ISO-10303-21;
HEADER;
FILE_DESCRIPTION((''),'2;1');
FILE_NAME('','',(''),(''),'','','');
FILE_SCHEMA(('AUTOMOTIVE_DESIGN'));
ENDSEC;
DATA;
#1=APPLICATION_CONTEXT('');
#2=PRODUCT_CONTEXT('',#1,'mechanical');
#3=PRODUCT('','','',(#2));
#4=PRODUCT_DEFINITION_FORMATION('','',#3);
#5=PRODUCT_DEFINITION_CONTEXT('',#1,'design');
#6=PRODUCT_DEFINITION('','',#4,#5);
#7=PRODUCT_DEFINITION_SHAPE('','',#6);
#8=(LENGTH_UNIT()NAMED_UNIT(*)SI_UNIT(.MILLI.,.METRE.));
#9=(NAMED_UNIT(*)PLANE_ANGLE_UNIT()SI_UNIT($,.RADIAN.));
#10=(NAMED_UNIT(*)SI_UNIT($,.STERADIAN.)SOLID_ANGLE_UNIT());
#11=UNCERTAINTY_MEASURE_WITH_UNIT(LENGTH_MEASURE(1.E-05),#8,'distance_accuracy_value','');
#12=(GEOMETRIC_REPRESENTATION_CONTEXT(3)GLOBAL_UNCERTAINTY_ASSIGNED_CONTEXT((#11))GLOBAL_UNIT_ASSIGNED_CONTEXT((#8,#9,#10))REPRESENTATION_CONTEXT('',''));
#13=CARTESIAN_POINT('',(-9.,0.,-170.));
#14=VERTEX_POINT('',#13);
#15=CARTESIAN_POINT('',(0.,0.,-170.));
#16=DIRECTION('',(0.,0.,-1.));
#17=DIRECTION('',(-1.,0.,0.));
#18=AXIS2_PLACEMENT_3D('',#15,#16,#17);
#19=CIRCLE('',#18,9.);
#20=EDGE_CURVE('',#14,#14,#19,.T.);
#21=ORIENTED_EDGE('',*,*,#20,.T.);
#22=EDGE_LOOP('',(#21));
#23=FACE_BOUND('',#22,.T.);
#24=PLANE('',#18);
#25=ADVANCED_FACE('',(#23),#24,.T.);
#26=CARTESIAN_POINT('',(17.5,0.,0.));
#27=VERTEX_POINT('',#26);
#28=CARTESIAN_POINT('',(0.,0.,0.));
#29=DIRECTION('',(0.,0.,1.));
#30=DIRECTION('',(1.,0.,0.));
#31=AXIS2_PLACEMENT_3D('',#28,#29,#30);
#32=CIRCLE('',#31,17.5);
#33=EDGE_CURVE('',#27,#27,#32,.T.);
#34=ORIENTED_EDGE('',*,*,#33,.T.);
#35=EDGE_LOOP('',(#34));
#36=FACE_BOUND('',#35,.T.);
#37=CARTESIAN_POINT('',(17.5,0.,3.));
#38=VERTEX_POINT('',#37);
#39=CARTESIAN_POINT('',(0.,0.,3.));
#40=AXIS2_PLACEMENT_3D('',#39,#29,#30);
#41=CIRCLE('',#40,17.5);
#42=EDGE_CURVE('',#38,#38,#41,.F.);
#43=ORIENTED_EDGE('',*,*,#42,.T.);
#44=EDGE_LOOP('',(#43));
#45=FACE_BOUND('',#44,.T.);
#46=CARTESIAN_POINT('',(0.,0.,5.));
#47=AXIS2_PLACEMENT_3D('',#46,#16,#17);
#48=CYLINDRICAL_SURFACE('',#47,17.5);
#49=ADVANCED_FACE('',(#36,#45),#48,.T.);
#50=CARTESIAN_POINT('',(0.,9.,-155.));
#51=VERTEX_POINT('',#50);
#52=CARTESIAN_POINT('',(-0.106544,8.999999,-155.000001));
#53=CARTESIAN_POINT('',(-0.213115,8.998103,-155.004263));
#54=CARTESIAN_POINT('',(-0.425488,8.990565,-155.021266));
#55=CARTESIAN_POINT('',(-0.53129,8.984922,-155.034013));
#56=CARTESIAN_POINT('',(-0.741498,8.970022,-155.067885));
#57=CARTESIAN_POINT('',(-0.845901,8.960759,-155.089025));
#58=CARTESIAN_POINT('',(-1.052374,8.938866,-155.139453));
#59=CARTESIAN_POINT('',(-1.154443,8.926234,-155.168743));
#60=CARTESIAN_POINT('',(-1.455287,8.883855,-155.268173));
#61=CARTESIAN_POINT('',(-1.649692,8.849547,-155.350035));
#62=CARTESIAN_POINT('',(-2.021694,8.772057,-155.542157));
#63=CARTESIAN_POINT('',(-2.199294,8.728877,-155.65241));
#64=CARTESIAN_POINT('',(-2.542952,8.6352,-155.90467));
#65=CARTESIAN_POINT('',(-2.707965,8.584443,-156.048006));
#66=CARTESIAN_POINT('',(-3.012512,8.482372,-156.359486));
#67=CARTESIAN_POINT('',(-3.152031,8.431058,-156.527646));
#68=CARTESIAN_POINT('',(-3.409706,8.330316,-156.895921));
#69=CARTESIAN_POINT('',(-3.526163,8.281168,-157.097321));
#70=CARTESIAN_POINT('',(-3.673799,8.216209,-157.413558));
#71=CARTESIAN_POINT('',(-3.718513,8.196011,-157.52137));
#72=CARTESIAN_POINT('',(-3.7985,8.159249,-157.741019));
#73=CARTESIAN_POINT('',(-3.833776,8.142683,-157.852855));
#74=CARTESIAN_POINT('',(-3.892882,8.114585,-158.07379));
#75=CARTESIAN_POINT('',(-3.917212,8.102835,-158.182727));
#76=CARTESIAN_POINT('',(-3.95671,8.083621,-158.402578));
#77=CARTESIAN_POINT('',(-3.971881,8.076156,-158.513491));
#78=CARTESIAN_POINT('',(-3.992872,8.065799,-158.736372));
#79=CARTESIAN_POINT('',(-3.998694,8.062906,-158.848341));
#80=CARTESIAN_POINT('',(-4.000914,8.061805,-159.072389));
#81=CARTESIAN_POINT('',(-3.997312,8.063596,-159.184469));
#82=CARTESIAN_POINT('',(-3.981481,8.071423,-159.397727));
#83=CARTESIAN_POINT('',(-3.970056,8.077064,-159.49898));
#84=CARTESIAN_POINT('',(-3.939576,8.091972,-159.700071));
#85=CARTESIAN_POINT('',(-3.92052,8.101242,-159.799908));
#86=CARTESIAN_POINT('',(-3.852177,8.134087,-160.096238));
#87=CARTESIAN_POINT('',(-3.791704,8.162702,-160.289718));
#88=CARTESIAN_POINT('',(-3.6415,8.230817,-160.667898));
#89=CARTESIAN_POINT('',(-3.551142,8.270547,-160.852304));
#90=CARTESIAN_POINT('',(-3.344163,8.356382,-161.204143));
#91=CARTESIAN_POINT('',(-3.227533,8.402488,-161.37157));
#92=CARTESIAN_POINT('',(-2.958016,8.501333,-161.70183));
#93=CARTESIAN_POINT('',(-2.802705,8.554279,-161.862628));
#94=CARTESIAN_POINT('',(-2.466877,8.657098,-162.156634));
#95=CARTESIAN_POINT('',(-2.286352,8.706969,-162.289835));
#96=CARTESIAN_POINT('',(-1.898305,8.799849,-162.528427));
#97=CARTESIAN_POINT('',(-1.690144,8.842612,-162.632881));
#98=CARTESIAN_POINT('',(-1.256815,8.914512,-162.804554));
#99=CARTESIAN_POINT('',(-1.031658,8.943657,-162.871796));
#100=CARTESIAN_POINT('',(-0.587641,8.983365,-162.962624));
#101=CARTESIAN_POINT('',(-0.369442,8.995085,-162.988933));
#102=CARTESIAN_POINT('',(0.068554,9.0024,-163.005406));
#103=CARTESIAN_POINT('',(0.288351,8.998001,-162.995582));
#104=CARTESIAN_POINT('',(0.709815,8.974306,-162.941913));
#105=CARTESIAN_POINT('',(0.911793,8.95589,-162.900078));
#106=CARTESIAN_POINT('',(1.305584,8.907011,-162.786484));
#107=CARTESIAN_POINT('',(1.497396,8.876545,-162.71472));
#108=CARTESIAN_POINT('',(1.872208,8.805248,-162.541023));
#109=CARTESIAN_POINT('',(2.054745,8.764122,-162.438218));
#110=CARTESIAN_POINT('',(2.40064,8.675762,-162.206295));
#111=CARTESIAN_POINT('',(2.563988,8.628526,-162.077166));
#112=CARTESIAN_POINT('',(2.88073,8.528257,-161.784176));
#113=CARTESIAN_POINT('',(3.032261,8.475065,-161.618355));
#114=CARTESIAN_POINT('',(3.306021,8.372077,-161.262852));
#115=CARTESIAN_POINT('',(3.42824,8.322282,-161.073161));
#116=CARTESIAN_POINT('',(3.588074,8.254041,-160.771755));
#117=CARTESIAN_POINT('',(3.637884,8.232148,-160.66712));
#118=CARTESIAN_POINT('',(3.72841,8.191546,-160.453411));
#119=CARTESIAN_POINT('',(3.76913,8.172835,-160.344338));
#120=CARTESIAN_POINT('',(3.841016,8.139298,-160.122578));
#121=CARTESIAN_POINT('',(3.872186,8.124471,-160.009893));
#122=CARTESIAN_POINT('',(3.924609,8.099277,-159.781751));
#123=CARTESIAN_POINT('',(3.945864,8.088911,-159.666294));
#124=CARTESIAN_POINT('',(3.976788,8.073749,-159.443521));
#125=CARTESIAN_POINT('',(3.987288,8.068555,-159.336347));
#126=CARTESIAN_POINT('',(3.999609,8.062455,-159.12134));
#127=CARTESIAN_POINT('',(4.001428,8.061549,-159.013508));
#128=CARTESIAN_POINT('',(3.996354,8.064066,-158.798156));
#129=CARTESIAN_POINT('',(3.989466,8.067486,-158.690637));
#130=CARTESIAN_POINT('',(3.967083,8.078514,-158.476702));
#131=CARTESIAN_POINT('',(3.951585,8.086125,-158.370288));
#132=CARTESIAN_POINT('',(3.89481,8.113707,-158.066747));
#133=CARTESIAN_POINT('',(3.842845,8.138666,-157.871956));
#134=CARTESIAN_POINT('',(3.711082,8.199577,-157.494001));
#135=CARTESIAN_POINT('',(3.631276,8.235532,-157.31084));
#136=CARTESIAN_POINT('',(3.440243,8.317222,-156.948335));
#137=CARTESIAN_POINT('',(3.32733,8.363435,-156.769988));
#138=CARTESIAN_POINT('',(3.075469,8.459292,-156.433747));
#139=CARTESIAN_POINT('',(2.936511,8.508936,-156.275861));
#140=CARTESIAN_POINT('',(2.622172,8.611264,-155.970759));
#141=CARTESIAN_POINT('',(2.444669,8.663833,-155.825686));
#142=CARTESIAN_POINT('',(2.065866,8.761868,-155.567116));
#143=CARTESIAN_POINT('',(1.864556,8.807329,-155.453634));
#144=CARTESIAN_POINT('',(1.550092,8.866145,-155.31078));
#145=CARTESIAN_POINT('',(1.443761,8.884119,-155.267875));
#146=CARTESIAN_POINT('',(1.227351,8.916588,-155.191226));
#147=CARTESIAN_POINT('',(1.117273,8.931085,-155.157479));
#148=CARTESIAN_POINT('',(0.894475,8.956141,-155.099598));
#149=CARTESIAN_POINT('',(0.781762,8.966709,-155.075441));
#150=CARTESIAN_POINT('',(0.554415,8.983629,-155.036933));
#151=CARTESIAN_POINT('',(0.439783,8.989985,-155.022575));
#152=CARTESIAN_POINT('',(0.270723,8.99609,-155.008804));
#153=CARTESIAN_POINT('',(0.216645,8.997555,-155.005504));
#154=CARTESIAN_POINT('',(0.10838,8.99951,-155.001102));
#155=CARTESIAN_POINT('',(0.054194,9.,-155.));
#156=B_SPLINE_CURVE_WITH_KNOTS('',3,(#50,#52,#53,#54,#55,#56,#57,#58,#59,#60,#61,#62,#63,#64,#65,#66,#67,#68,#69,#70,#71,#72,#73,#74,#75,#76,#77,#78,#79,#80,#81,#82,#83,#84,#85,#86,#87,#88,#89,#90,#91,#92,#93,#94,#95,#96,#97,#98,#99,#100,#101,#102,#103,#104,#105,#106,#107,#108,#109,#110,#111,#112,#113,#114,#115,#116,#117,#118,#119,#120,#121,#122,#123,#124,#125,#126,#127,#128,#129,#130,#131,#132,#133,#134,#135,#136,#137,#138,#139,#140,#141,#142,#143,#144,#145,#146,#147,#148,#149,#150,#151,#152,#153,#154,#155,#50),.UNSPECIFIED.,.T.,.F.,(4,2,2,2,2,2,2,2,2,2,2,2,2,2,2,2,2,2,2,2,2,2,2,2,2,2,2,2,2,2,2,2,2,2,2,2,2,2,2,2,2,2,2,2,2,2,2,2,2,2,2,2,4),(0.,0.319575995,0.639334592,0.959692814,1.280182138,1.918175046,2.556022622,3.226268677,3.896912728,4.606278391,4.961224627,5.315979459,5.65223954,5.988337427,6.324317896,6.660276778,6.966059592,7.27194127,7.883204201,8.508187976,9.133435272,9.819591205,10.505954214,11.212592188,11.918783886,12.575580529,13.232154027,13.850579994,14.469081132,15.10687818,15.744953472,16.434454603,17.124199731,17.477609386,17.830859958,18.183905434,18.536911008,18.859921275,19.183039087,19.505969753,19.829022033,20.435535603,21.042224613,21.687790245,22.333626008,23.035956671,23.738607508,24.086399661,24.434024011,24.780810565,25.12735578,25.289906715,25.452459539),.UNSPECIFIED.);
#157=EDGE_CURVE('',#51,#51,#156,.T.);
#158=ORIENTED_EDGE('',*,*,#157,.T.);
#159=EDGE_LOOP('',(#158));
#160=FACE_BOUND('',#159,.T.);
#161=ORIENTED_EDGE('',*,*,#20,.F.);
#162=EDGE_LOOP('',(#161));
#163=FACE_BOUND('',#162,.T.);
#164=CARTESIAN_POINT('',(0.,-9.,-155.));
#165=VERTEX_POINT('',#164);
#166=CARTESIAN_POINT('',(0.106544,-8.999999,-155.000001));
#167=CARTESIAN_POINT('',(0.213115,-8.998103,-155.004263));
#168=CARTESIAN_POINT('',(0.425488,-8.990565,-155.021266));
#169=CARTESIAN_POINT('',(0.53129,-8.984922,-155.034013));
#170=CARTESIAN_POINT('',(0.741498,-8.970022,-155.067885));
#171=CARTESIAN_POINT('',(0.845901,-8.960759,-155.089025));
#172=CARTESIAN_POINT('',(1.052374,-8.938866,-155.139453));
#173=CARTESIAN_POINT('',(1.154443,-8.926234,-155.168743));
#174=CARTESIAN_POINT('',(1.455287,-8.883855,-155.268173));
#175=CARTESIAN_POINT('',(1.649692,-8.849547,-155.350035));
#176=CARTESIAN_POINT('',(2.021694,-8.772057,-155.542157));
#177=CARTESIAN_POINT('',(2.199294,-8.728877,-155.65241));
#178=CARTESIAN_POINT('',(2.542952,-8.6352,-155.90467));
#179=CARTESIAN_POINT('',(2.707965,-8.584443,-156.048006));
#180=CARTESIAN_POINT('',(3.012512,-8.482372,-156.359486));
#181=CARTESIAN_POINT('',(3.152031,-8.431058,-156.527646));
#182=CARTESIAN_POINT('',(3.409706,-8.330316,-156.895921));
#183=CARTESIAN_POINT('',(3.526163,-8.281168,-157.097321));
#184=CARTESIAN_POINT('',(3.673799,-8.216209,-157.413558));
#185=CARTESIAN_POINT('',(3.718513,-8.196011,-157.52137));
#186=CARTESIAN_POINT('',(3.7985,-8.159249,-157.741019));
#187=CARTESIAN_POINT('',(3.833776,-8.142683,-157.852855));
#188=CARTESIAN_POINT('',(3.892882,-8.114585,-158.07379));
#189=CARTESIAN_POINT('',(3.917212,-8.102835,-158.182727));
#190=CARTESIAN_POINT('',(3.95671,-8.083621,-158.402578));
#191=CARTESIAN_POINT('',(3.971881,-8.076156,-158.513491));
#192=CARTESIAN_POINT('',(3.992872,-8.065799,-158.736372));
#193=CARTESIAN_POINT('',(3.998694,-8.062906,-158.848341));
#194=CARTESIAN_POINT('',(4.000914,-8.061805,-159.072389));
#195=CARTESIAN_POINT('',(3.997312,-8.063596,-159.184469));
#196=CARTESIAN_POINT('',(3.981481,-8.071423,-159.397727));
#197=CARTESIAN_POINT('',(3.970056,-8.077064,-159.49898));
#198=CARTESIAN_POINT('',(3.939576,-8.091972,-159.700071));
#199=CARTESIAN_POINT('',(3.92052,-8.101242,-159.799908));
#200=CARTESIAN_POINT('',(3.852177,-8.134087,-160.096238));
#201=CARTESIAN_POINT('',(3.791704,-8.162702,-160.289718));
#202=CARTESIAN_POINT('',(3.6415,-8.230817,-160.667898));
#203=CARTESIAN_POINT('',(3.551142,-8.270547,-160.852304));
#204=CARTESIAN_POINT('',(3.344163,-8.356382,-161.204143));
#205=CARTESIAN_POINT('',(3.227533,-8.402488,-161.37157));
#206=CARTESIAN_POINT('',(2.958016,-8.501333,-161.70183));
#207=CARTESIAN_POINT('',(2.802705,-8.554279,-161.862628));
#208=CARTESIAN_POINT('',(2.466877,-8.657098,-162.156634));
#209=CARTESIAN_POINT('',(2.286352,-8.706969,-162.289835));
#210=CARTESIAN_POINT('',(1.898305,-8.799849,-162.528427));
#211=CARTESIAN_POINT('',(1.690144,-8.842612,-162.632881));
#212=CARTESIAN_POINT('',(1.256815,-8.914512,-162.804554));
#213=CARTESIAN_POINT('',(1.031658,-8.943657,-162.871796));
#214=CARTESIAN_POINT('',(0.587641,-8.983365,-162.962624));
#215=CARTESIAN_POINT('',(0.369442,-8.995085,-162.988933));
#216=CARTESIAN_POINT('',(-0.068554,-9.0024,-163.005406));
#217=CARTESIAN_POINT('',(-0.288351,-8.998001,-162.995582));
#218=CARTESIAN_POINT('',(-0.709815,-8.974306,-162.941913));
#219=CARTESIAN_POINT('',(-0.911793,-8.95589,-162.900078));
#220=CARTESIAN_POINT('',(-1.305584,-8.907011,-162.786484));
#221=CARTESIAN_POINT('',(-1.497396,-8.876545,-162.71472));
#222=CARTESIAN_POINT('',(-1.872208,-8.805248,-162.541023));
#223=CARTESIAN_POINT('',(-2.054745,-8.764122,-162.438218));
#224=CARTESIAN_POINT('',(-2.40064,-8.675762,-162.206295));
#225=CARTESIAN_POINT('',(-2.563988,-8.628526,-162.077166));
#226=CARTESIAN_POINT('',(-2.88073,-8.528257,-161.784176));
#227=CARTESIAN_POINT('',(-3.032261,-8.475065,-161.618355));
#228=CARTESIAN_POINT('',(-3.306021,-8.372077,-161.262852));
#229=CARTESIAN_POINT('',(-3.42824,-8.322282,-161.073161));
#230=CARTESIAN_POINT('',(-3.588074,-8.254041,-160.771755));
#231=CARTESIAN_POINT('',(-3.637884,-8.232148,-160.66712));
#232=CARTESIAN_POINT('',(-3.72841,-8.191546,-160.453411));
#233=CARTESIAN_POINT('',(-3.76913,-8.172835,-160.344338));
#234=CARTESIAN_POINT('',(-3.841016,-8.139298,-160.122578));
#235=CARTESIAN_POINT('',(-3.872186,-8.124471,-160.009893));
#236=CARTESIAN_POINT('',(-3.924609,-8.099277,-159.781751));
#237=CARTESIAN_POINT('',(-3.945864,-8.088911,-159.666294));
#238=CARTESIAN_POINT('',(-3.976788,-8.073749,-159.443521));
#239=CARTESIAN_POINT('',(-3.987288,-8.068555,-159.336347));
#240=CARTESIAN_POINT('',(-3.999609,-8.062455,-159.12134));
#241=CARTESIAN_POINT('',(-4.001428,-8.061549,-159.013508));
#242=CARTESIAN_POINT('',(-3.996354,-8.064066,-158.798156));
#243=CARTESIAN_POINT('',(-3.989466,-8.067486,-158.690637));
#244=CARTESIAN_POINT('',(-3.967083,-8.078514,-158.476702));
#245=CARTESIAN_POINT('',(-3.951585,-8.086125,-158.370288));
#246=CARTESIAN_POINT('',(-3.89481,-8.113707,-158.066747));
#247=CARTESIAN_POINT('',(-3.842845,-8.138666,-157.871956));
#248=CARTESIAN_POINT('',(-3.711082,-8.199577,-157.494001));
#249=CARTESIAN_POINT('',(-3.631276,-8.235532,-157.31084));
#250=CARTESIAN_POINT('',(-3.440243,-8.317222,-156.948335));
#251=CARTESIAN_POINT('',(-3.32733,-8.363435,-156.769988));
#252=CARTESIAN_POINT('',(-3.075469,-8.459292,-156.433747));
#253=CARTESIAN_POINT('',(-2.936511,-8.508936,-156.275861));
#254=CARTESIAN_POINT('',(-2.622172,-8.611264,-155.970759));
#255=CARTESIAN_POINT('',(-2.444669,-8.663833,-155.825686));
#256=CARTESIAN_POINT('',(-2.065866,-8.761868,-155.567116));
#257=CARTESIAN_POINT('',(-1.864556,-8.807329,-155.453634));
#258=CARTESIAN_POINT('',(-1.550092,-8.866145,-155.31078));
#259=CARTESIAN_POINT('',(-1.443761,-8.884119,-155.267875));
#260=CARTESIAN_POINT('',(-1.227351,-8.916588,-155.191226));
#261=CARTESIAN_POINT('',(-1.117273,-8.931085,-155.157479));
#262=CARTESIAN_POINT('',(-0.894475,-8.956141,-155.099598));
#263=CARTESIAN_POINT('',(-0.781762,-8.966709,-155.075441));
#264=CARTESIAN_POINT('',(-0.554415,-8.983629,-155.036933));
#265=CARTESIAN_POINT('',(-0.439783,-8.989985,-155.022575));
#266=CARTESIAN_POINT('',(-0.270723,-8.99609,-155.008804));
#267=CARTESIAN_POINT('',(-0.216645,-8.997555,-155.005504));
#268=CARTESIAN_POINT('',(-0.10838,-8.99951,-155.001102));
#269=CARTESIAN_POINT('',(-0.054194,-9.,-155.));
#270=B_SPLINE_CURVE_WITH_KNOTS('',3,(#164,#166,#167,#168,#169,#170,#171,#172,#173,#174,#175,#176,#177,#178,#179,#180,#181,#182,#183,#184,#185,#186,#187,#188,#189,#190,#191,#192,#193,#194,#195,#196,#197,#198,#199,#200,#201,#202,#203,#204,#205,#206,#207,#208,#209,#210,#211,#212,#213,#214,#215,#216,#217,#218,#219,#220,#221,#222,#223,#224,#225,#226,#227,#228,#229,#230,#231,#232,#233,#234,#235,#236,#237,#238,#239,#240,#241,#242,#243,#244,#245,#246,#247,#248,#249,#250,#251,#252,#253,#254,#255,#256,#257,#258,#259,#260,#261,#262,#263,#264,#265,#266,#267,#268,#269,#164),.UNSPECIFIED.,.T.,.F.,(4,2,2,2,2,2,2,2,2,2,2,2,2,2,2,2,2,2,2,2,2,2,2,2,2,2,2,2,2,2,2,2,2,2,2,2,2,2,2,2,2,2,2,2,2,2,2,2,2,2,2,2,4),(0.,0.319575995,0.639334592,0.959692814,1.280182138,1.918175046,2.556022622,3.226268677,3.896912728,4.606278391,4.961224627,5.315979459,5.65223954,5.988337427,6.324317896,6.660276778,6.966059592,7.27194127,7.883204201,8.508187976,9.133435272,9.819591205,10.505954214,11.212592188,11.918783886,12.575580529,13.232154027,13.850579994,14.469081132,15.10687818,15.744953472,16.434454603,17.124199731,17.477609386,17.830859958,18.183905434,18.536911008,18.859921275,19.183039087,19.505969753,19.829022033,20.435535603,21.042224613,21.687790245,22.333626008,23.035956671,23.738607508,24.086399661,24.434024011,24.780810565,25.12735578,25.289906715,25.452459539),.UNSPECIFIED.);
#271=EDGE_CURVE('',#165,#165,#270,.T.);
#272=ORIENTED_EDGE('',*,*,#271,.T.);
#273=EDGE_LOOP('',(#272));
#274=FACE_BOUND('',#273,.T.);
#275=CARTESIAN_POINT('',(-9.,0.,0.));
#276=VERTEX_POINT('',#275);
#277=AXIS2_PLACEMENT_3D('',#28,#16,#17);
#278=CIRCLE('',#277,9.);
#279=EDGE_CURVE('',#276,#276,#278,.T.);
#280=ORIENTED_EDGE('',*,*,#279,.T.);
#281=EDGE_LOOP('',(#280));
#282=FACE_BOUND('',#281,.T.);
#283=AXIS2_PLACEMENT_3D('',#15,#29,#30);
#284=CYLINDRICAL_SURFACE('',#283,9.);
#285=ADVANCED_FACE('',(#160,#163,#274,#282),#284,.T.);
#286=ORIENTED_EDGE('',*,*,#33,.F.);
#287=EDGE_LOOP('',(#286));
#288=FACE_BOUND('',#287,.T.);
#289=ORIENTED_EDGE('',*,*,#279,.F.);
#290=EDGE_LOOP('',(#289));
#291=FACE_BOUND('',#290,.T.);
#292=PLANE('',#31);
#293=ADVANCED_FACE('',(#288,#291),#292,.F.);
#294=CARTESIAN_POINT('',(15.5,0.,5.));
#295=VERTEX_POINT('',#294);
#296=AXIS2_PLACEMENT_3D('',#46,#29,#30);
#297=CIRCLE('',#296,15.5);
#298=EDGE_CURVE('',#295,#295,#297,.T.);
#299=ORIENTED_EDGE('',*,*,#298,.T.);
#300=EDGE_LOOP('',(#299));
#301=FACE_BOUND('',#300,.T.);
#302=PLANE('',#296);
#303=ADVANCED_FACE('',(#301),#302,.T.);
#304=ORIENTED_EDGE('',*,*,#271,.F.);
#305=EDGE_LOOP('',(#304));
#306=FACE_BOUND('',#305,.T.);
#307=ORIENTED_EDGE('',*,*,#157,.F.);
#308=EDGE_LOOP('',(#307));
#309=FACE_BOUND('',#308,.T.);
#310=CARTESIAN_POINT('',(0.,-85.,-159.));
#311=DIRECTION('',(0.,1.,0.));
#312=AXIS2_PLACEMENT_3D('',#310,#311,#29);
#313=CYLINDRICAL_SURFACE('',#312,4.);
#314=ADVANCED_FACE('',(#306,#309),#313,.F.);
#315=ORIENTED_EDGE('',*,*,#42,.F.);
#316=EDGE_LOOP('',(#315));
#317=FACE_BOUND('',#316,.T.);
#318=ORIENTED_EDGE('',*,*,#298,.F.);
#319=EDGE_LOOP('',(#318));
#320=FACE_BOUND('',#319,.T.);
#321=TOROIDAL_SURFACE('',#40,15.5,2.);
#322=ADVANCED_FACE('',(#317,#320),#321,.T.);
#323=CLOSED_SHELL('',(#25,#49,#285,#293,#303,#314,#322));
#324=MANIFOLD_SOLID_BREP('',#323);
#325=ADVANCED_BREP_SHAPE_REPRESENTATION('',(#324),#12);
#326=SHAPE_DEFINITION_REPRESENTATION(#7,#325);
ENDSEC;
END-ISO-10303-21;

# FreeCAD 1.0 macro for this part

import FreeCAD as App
import Part
import Sketcher

V = App.Vector


def edges_at(feature, points):
    """Names of the edges that pass closest to the given points."""
    edges = feature.Shape.Edges
    near = lambda p: min(range(len(edges)), key=lambda i: edges[i].distToShape(Part.Vertex(*p))[0])
    return sorted({f"Edge{near(p) + 1}" for p in points})

doc = App.newDocument("Part")
params = doc.addObject("Spreadsheet::Sheet", "Params")
for row, (alias, value) in enumerate([
    ("sketch1_diameter", "35 mm"),
    ("pad1_length", "5 mm"),
    ("fillet_radius", "2 mm"),
    ("sketch2_diameter", "18 mm"),
    ("pad2_length", "170 mm"),
    ("sketch3_diameter", "8 mm"),
    ("pocket1_length", "170 mm"),
], start=1):
    params.set(f"A{row}", alias)
    params.set(f"B{row}", "=" + value)
    params.setAlias(f"B{row}", alias)

body = doc.addObject("PartDesign::Body", "Body")

# Sketch on XY plane
sketch1 = body.newObject("Sketcher::SketchObject", "Sketch")
sketch1.AttachmentSupport = (doc.getObject("XY_Plane"), [""])
sketch1.MapMode = "FlatFace"
sketch1.addGeometry(Part.Circle(V(0, 0, 0), V(0, 0, 1), 18), False)
sketch1.addConstraint([
    Sketcher.Constraint("Coincident", 0, 3, -1, 1),
    Sketcher.Constraint("Diameter", 0, 35.0),
])
sketch1.setExpression("Constraints[1]", "Params.sketch1_diameter")
pad1 = body.newObject("PartDesign::Pad", "Pad")
pad1.Profile = sketch1
pad1.setExpression("Length", "Params.pad1_length")
doc.recompute()

fillet = body.newObject("PartDesign::Fillet", "Fillet")
fillet.Base = (pad1, edges_at(pad1, [(-17.5, 0, 5)]))
fillet.setExpression("Radius", "Params.fillet_radius")

# Sketch on XY plane
sketch2 = body.newObject("Sketcher::SketchObject", "Sketch001")
sketch2.AttachmentSupport = (doc.getObject("XY_Plane"), [""])
sketch2.MapMode = "FlatFace"
sketch2.addGeometry(Part.Circle(V(0, 0, 0), V(0, 0, 1), 9), False)
sketch2.addConstraint([
    Sketcher.Constraint("Coincident", 0, 3, -1, 1),
    Sketcher.Constraint("Diameter", 0, 18.0),
])
sketch2.setExpression("Constraints[1]", "Params.sketch2_diameter")
pad2 = body.newObject("PartDesign::Pad", "Pad001")
pad2.Profile = sketch2
pad2.setExpression("Length", "Params.pad2_length")
pad2.Reversed = True

# Sketch on XZ plane
sketch3 = body.newObject("Sketcher::SketchObject", "Sketch002")
sketch3.AttachmentSupport = (doc.getObject("XZ_Plane"), [""])
sketch3.MapMode = "FlatFace"
sketch3.addGeometry(Part.Circle(V(0, -159, 0), V(0, 0, 1), 4), False)
sketch3.addConstraint([
    Sketcher.Constraint("PointOnObject", 0, 3, -2),
    Sketcher.Constraint("Diameter", 0, 8.0),
    Sketcher.Constraint("DistanceY", 0, 3, -1, 1, 159.0),
])
sketch3.setExpression("Constraints[1]", "Params.sketch3_diameter")
pocket1 = body.newObject("PartDesign::Pocket", "Pocket")
pocket1.Profile = sketch3
pocket1.setExpression("Length", "Params.pocket1_length")
pocket1.Midplane = True

doc.recompute()
